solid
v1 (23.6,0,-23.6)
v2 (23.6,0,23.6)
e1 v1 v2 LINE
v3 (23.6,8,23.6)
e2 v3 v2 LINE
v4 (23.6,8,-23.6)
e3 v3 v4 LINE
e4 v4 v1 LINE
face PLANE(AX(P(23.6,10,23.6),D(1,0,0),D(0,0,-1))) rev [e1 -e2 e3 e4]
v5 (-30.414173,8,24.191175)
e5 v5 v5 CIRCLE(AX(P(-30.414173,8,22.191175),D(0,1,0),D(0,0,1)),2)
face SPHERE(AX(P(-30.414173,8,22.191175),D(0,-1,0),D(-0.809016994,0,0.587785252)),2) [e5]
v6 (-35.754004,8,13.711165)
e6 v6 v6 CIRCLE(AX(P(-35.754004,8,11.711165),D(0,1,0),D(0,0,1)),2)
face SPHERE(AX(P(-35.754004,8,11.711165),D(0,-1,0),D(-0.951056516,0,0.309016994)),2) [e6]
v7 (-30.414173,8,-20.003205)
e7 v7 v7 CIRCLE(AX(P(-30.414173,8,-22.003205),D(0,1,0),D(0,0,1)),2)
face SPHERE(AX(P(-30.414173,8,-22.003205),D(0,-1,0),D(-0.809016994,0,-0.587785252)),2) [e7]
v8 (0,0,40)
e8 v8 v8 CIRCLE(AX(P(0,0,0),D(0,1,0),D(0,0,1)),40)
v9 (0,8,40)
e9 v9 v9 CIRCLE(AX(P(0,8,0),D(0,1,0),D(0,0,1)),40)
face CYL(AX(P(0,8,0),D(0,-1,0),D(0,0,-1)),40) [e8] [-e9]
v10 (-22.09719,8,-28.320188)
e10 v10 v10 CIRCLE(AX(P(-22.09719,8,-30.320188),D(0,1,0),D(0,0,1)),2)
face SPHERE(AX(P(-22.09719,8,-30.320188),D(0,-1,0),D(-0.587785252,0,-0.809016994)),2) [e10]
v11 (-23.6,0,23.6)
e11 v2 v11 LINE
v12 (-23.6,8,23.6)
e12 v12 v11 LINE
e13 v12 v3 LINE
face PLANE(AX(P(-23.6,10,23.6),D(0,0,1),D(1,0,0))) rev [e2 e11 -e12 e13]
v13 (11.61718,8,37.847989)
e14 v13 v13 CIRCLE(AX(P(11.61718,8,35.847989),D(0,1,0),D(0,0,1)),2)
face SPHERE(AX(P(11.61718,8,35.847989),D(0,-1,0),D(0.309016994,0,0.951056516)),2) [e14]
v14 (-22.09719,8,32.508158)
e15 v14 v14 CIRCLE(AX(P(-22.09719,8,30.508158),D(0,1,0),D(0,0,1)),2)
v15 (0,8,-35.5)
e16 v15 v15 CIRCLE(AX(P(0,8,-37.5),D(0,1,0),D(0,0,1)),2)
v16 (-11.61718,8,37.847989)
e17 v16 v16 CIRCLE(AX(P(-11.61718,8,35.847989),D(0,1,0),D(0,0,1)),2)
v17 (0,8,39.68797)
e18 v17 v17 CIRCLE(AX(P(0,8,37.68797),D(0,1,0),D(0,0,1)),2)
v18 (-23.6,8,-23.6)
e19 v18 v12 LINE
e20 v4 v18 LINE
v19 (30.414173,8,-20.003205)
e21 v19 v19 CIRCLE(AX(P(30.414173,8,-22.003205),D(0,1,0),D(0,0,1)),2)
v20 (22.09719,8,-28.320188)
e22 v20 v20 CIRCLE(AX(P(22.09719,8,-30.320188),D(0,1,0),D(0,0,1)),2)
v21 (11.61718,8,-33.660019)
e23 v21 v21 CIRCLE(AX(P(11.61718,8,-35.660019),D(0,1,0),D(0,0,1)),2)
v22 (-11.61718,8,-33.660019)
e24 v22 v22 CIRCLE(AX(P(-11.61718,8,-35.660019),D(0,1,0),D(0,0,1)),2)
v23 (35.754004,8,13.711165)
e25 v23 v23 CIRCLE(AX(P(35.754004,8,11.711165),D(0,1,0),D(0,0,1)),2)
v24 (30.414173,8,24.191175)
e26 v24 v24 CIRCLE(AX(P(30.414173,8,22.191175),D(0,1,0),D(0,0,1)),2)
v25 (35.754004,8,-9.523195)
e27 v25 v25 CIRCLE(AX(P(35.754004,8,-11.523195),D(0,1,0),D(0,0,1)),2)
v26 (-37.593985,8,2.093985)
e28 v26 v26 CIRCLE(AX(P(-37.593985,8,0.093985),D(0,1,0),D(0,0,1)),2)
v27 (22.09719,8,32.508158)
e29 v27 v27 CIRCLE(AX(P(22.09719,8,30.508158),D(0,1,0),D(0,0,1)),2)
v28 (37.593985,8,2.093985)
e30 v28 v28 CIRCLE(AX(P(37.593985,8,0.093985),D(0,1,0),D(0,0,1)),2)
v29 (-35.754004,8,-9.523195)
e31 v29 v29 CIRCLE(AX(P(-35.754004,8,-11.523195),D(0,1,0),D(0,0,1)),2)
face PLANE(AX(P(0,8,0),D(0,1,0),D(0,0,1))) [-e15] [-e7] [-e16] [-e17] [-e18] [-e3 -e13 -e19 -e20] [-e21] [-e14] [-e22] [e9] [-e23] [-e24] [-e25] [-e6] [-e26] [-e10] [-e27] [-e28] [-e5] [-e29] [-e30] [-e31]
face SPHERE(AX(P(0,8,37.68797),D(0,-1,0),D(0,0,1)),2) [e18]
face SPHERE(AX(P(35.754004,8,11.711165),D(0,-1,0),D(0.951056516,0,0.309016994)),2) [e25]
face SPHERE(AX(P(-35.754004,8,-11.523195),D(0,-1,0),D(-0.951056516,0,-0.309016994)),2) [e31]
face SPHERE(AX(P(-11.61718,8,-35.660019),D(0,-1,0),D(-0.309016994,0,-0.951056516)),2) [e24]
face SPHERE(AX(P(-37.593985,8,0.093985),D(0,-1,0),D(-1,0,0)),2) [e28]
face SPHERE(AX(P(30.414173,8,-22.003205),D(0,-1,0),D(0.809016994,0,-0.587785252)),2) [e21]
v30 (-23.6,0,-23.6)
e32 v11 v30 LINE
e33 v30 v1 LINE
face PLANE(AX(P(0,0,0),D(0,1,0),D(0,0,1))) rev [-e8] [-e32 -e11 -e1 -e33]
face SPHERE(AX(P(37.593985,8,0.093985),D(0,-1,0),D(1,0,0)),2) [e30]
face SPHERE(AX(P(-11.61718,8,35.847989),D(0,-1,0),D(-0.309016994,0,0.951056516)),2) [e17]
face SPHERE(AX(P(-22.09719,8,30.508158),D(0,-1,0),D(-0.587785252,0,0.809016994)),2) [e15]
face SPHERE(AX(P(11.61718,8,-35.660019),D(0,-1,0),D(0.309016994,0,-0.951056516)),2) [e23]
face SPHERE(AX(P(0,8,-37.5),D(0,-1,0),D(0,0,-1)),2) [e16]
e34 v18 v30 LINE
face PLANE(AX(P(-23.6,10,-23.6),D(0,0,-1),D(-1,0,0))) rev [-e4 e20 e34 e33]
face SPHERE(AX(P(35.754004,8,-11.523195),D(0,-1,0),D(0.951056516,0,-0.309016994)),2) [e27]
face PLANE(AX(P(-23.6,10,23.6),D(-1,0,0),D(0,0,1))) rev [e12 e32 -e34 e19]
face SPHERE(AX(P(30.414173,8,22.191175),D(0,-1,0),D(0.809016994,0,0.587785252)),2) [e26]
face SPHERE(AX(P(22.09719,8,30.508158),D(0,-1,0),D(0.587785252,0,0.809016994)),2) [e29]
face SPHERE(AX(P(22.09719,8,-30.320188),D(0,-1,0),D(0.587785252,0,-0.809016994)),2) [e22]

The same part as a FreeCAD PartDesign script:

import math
import FreeCAD as App
import Part
import Sketcher


def add_polygon(sketch, points):
    """Adds a closed chain of lines whose ends are joined by coincident constraints."""
    first, n = sketch.GeometryCount, len(points)
    for a, b in zip(points, points[1:] + points[:1]):
        sketch.addGeometry(Part.LineSegment(App.Vector(*a, 0), App.Vector(*b, 0)), False)
    for i in range(n):
        sketch.addConstraint(Sketcher.Constraint("Coincident", first + i, 2, first + (i + 1) % n, 1))

doc = App.newDocument("Part")
params = doc.addObject("Spreadsheet::Sheet", "Params")
for row, (alias, value) in enumerate([
    ("sketch1_diameter", "80 mm"),
    ("pad1_length", "8 mm"),
    ("sketch2_radius", "2 mm"),
    ("revolution_angle", "360 deg"),
    ("sketch3_width", "47.2 mm"),
    ("pocket1_length", "10 mm"),
], start=1):
    params.set(f"A{row}", alias)
    params.set(f"B{row}", "=" + value)
    params.setAlias(f"B{row}", alias)

body = doc.addObject("PartDesign::Body", "Body")

# Sketch on XZ plane
sketch1 = body.newObject("Sketcher::SketchObject", "Sketch")
sketch1.AttachmentSupport = (doc.getObject("XZ_Plane"), [""])
sketch1.MapMode = "FlatFace"
sketch1.addGeometry(Part.Circle(App.Vector(0, 0, 0), App.Vector(0, 0, 1), 40), False)
sketch1.addConstraint([
    Sketcher.Constraint("Coincident", 0, 3, -1, 1),
    Sketcher.Constraint("Diameter", 0, 80.0),
])
sketch1.setExpression("Constraints[1]", "Params.sketch1_diameter")
pad1 = body.newObject("PartDesign::Pad", "Pad")
pad1.Profile = sketch1
pad1.setExpression("Length", "Params.pad1_length")
pad1.Reversed = True

# Sketch on YZ plane
sketch2 = body.newObject("Sketcher::SketchObject", "Sketch001")
sketch2.AttachmentSupport = (doc.getObject("YZ_Plane"), [""])
sketch2.MapMode = "FlatFace"
sketch2.addGeometry([
    Part.LineSegment(App.Vector(10, -37.5, 0), App.Vector(8, -37.5, 0)),
    Part.LineSegment(App.Vector(8, -37.5, 0), App.Vector(8, -39.5, 0)),
    Part.ArcOfCircle(Part.Circle(App.Vector(8, -37.5, 0), App.Vector(0, 0, 1), 2), math.radians(-90), math.radians(0)),
], False)
sketch2.addGeometry(Part.LineSegment(App.Vector(8, -37.5, 0), App.Vector(10, -37.5, 0)), True)  # axis
sketch2.addConstraint([
    Sketcher.Constraint("Coincident", 0, 2, 1, 1),
    Sketcher.Constraint("Coincident", 1, 2, 2, 1),
    Sketcher.Constraint("Coincident", 2, 2, 0, 1),
    Sketcher.Constraint("Horizontal", 0),
    Sketcher.Constraint("Vertical", 1),
    Sketcher.Constraint("Horizontal", 3),
    Sketcher.Constraint("Coincident", 0, 2, 2, 3),
    Sketcher.Constraint("Coincident", 3, 1, 2, 3),
    Sketcher.Constraint("Equal", 0, 3),
    Sketcher.Constraint("Radius", 2, 2.0),
    Sketcher.Constraint("DistanceX", -1, 1, 2, 3, 8.0),
    Sketcher.Constraint("DistanceY", 2, 3, -1, 1, 37.5),
])
sketch2.setExpression("Constraints[9]", "Params.sketch2_radius")
revolution = body.newObject("PartDesign::Revolution", "Revolution")
revolution.Profile = sketch2
revolution.ReferenceAxis = (sketch2, ["Axis0"])
revolution.setExpression("Angle", "Params.revolution_angle")
doc.recompute()

datumline = body.newObject("PartDesign::Line", "DatumLine")
datumline.Placement = App.Placement(App.Vector(0, 0, 0.093985), App.Rotation(App.Vector(0, 0, 1), App.Vector(0, 1, 0)))
polarpattern = body.newObject("PartDesign::PolarPattern", "PolarPattern")
polarpattern.Originals = [revolution]
polarpattern.Axis = (datumline, [""])
polarpattern.Angle = 360
polarpattern.Occurrences = 20
body.Tip = polarpattern

# Sketch on XZ plane
sketch3 = body.newObject("Sketcher::SketchObject", "Sketch002")
sketch3.AttachmentSupport = (doc.getObject("XZ_Plane"), [""])
sketch3.MapMode = "FlatFace"
add_polygon(sketch3, [(-24, 24), (-24, -24), (24, -24), (24, 24)])  # lines 0-3
sketch3.addConstraint([
    Sketcher.Constraint("Vertical", 0),
    Sketcher.Constraint("Horizontal", 1),
    Sketcher.Constraint("Vertical", 2),
    Sketcher.Constraint("Horizontal", 3),
    Sketcher.Constraint("Symmetric", 0, 2, 2, 2, -1, 1),
    Sketcher.Constraint("Equal", 3, 0),
    Sketcher.Constraint("DistanceX", 1, 1, 1, 2, 47.2),
])
sketch3.setExpression("Constraints[10]", "Params.sketch3_width")
pocket1 = body.newObject("PartDesign::Pocket", "Pocket")
pocket1.Profile = sketch3
pocket1.setExpression("Length", "Params.pocket1_length")

doc.recompute()
